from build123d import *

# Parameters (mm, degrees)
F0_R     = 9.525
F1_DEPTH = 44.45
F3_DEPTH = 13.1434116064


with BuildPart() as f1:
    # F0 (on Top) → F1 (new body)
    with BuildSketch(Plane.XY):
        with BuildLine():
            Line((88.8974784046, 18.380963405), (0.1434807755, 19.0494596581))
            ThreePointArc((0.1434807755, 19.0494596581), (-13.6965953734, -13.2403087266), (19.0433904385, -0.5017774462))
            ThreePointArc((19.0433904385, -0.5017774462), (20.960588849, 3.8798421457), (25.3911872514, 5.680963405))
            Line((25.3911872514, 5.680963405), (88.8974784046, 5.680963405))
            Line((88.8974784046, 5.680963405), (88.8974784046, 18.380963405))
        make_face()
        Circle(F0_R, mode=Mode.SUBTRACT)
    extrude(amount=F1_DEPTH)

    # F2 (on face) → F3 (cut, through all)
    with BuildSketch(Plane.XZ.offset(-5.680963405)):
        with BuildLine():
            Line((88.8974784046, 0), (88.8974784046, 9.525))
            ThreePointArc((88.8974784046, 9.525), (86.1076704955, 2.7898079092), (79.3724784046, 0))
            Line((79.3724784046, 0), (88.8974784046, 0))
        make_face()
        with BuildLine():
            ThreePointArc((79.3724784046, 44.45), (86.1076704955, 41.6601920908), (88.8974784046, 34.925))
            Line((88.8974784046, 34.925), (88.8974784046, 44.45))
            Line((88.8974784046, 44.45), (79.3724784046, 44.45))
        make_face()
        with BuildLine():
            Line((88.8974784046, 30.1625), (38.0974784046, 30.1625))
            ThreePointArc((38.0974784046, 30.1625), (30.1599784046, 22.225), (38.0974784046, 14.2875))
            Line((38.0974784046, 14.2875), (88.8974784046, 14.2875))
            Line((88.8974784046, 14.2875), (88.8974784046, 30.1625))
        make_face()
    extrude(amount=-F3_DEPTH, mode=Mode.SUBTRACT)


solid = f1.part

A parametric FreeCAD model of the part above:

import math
import FreeCAD as App
import Part
import Sketcher
Q = App.Units.Quantity

doc = App.newDocument("Part")
body = doc.addObject("PartDesign::Body", "Body")

sketch1 = body.newObject("Sketcher::SketchObject", "Sketch")
sketch1.AttachmentSupport = (doc.getObject("XY_Plane"), [""])
sketch1.MapMode = "FlatFace"
sketch1.addGeometry(Part.LineSegment(App.Vector(89, 18, 0), App.Vector(0, 19, 0)), False)
sketch1.addGeometry(Part.ArcOfCircle(Part.Circle(App.Vector(0, 0, 0), App.Vector(0, 0, 1), 19), math.radians(90), math.radians(358)), False)
sketch1.addGeometry(Part.ArcOfCircle(Part.Circle(App.Vector(25, -1, 0), App.Vector(0, 0, 1), 6), math.radians(90), math.radians(178)), False)
sketch1.addGeometry(Part.LineSegment(App.Vector(25, 6, 0), App.Vector(89, 6, 0)), False)
sketch1.addGeometry(Part.LineSegment(App.Vector(89, 6, 0), App.Vector(89, 18, 0)), False)
sketch1.addGeometry(Part.Circle(App.Vector(0, 0, 0), App.Vector(0, 0, 1), 10), False)
sketch1.addConstraint(Sketcher.Constraint("Tangent", 0, 2, 1, 1))
sketch1.addConstraint(Sketcher.Constraint("Tangent", 1, 2, 2, 2))
sketch1.addConstraint(Sketcher.Constraint("Tangent", 2, 1, 3, 1))
sketch1.addConstraint(Sketcher.Constraint("Coincident", 3, 2, 4, 1))
sketch1.addConstraint(Sketcher.Constraint("Coincident", 4, 2, 0, 1))
sketch1.addConstraint(Sketcher.Constraint("Horizontal", 3))
sketch1.addConstraint(Sketcher.Constraint("Vertical", 4))
sketch1.addConstraint(Sketcher.Constraint("Coincident", 1, 3, -1, 1))
sketch1.addConstraint(Sketcher.Constraint("Coincident", 5, 3, -1, 1))
sketch1.addConstraint(Sketcher.Constraint("Diameter", 5, Q("0.75 in")))
sketch1.addConstraint(Sketcher.Constraint("Radius", 1, Q("0.75 in")))
sketch1.addConstraint(Sketcher.Constraint("Radius", 2, Q("0.25 in")))
sketch1.addConstraint(Sketcher.Constraint("DistanceY", 4, 1, 4, 2, Q("0.5 in")))
sketch1.addConstraint(Sketcher.Constraint("DistanceX", 3, 1, 3, 2, Q("63.506291 mm")))
sketch1.addConstraint(Sketcher.Constraint("DistanceX", -1, 1, 0, 2, Q("0.143481 mm")))
pad1 = body.newObject("PartDesign::Pad", "Pad")
pad1.Profile = sketch1
pad1.Length = Q("1.75 in")

sketch2 = body.newObject("Sketcher::SketchObject", "Sketch001")
sketch2.AttachmentSupport = (doc.getObject("XZ_Plane"), [""])
sketch2.MapMode = "FlatFace"
sketch2.AttachmentOffset = App.Placement(App.Vector(0, 0, -5.680963), App.Rotation())
sketch2.addGeometry(Part.LineSegment(App.Vector(89, 0, 0), App.Vector(89, 10, 0)), False)
sketch2.addGeometry(Part.ArcOfCircle(Part.Circle(App.Vector(79, 10, 0), App.Vector(0, 0, 1), 10), math.radians(-90), math.radians(0)), False)
sketch2.addGeometry(Part.LineSegment(App.Vector(79, 0, 0), App.Vector(89, 0, 0)), False)
sketch2.addGeometry(Part.ArcOfCircle(Part.Circle(App.Vector(79, 35, 0), App.Vector(0, 0, 1), 10), math.radians(0), math.radians(90)), False)
sketch2.addGeometry(Part.LineSegment(App.Vector(89, 35, 0), App.Vector(89, 44, 0)), False)
sketch2.addGeometry(Part.LineSegment(App.Vector(89, 44, 0), App.Vector(79, 44, 0)), False)
sketch2.addGeometry(Part.LineSegment(App.Vector(89, 30, 0), App.Vector(38, 30, 0)), False)
sketch2.addGeometry(Part.ArcOfCircle(Part.Circle(App.Vector(38, 22, 0), App.Vector(0, 0, 1), 8), math.radians(90), math.radians(270)), False)
sketch2.addGeometry(Part.LineSegment(App.Vector(38, 14, 0), App.Vector(89, 14, 0)), False)
sketch2.addGeometry(Part.LineSegment(App.Vector(89, 14, 0), App.Vector(89, 30, 0)), False)
sketch2.addConstraint(Sketcher.Constraint("Tangent", 0, 2, 1, 2))
sketch2.addConstraint(Sketcher.Constraint("Tangent", 1, 1, 2, 1))
sketch2.addConstraint(Sketcher.Constraint("Coincident", 2, 2, 0, 1))
sketch2.addConstraint(Sketcher.Constraint("Tangent", 3, 1, 4, 1))
sketch2.addConstraint(Sketcher.Constraint("Coincident", 4, 2, 5, 1))
sketch2.addConstraint(Sketcher.Constraint("Tangent", 5, 2, 3, 2))
sketch2.addConstraint(Sketcher.Constraint("Tangent", 6, 2, 7, 1))
sketch2.addConstraint(Sketcher.Constraint("Tangent", 7, 2, 8, 1))
sketch2.addConstraint(Sketcher.Constraint("Coincident", 8, 2, 9, 1))
sketch2.addConstraint(Sketcher.Constraint("Coincident", 9, 2, 6, 1))
sketch2.addConstraint(Sketcher.Constraint("Vertical", 0))
sketch2.addConstraint(Sketcher.Constraint("Horizontal", 2))
sketch2.addConstraint(Sketcher.Constraint("Vertical", 4))
sketch2.addConstraint(Sketcher.Constraint("Horizontal", 5))
sketch2.addConstraint(Sketcher.Constraint("Horizontal", 6))
sketch2.addConstraint(Sketcher.Constraint("Horizontal", 8))
sketch2.addConstraint(Sketcher.Constraint("Vertical", 9))
sketch2.addConstraint(Sketcher.Constraint("Equal", 1, 3))
sketch2.addConstraint(Sketcher.Constraint("PointOnObject", 1, 1, -1))
sketch2.addConstraint(Sketcher.Constraint("Vertical", 1, 3, 3, 3))
sketch2.addConstraint(Sketcher.Constraint("Vertical", 4, 2, 8, 2))
sketch2.addConstraint(Sketcher.Constraint("DistanceX", 6, 2, 6, 1, Q("2 in")))
sketch2.addConstraint(Sketcher.Constraint("Radius", 1, Q("0.375 in")))
sketch2.addConstraint(Sketcher.Constraint("Radius", 7, Q("0.3125 in")))
sketch2.addConstraint(Sketcher.Constraint("DistanceY", 1, 3, 3, 3, Q("1 in")))
sketch2.addConstraint(Sketcher.Constraint("DistanceY", 1, 3, 7, 3, Q("0.5 in")))
sketch2.addConstraint(Sketcher.Constraint("DistanceX", -1, 1, 1, 3, Q("79.372478 mm")))
pocket1 = body.newObject("PartDesign::Pocket", "Pocket")
pocket1.Profile = sketch2
pocket1.Type = "ThroughAll"

doc.recompute()
